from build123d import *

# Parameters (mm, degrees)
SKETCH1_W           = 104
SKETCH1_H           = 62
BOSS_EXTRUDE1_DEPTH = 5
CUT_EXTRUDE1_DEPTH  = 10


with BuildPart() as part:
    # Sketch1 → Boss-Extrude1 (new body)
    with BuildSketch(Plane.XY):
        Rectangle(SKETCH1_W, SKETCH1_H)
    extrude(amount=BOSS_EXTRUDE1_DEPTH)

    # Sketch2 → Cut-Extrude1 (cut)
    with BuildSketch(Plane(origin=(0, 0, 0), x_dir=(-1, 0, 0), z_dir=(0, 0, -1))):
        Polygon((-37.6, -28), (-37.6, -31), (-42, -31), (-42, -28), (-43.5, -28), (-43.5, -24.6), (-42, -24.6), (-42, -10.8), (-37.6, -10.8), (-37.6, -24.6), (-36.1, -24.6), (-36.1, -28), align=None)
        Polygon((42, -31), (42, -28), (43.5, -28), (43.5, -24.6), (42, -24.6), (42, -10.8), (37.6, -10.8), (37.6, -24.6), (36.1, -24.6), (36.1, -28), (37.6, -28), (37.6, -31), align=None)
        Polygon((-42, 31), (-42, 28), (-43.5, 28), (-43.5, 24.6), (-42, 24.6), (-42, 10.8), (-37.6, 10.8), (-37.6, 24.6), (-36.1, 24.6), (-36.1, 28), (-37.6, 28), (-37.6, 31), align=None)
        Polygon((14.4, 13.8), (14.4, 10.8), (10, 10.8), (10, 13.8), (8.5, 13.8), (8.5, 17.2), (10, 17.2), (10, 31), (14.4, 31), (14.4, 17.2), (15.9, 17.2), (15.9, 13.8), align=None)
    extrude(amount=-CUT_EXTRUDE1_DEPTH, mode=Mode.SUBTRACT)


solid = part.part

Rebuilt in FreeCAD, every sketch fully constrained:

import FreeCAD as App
import Part
import Sketcher
from FreeCAD import Vector

doc = App.newDocument("Part")
body = doc.addObject("PartDesign::Body", "Body")

# Sketch on XY plane
sketch1 = body.newObject("Sketcher::SketchObject", "Sketch")
sketch1.AttachmentSupport = (doc.getObject("XY_Plane"), [""])
sketch1.MapMode = "FlatFace"
sketch1.addGeometry(Part.LineSegment(Vector(-52, 31, 0), Vector(-52, -31, 0)), False)
sketch1.addGeometry(Part.LineSegment(Vector(-52, -31, 0), Vector(52, -31, 0)), False)
sketch1.addGeometry(Part.LineSegment(Vector(52, -31, 0), Vector(52, 31, 0)), False)
sketch1.addGeometry(Part.LineSegment(Vector(52, 31, 0), Vector(-52, 31, 0)), False)
sketch1.addConstraint(Sketcher.Constraint("Coincident", 0, 2, 1, 1))
sketch1.addConstraint(Sketcher.Constraint("Coincident", 1, 2, 2, 1))
sketch1.addConstraint(Sketcher.Constraint("Coincident", 2, 2, 3, 1))
sketch1.addConstraint(Sketcher.Constraint("Coincident", 3, 2, 0, 1))
sketch1.addConstraint(Sketcher.Constraint("Vertical", 0))
sketch1.addConstraint(Sketcher.Constraint("Horizontal", 1))
sketch1.addConstraint(Sketcher.Constraint("Vertical", 2))
sketch1.addConstraint(Sketcher.Constraint("Horizontal", 3))
sketch1.addConstraint(Sketcher.Constraint("Symmetric", 0, 2, 2, 2, -1, 1))
sketch1.addConstraint(Sketcher.Constraint("DistanceX", 1, 1, 1, 2, 104.0))
sketch1.addConstraint(Sketcher.Constraint("DistanceY", 0, 2, 0, 1, 62.0))
pad1 = body.newObject("PartDesign::Pad", "Pad")
pad1.Profile = sketch1
pad1.Length = 5

# Sketch on XY plane
sketch2 = body.newObject("Sketcher::SketchObject", "Sketch001")
sketch2.AttachmentSupport = (doc.getObject("XY_Plane"), [""])
sketch2.MapMode = "FlatFace"
sketch2.addGeometry(Part.LineSegment(Vector(37.6, -31, 0), Vector(37.6, -28, 0)), False)
sketch2.addGeometry(Part.LineSegment(Vector(37.6, -28, 0), Vector(36.1, -28, 0)), False)
sketch2.addGeometry(Part.LineSegment(Vector(36.1, -28, 0), Vector(36.1, -24.6, 0)), False)
sketch2.addGeometry(Part.LineSegment(Vector(36.1, -24.6, 0), Vector(37.6, -24.6, 0)), False)
sketch2.addGeometry(Part.LineSegment(Vector(37.6, -24.6, 0), Vector(37.6, -10.8, 0)), False)
sketch2.addGeometry(Part.LineSegment(Vector(37.6, -10.8, 0), Vector(42, -10.8, 0)), False)
sketch2.addGeometry(Part.LineSegment(Vector(42, -10.8, 0), Vector(42, -24.6, 0)), False)
sketch2.addGeometry(Part.LineSegment(Vector(42, -24.6, 0), Vector(43.5, -24.6, 0)), False)
sketch2.addGeometry(Part.LineSegment(Vector(43.5, -24.6, 0), Vector(43.5, -28, 0)), False)
sketch2.addGeometry(Part.LineSegment(Vector(43.5, -28, 0), Vector(42, -28, 0)), False)
sketch2.addGeometry(Part.LineSegment(Vector(42, -28, 0), Vector(42, -31, 0)), False)
sketch2.addGeometry(Part.LineSegment(Vector(42, -31, 0), Vector(37.6, -31, 0)), False)
sketch2.addGeometry(Part.LineSegment(Vector(-42, -31, 0), Vector(-42, -28, 0)), False)
sketch2.addGeometry(Part.LineSegment(Vector(-42, -28, 0), Vector(-43.5, -28, 0)), False)
sketch2.addGeometry(Part.LineSegment(Vector(-43.5, -28, 0), Vector(-43.5, -24.6, 0)), False)
sketch2.addGeometry(Part.LineSegment(Vector(-43.5, -24.6, 0), Vector(-42, -24.6, 0)), False)
sketch2.addGeometry(Part.LineSegment(Vector(-42, -24.6, 0), Vector(-42, -10.8, 0)), False)
sketch2.addGeometry(Part.LineSegment(Vector(-42, -10.8, 0), Vector(-37.6, -10.8, 0)), False)
sketch2.addGeometry(Part.LineSegment(Vector(-37.6, -10.8, 0), Vector(-37.6, -24.6, 0)), False)
sketch2.addGeometry(Part.LineSegment(Vector(-37.6, -24.6, 0), Vector(-36.1, -24.6, 0)), False)
sketch2.addGeometry(Part.LineSegment(Vector(-36.1, -24.6, 0), Vector(-36.1, -28, 0)), False)
sketch2.addGeometry(Part.LineSegment(Vector(-36.1, -28, 0), Vector(-37.6, -28, 0)), False)
sketch2.addGeometry(Part.LineSegment(Vector(-37.6, -28, 0), Vector(-37.6, -31, 0)), False)
sketch2.addGeometry(Part.LineSegment(Vector(-37.6, -31, 0), Vector(-42, -31, 0)), False)
sketch2.addGeometry(Part.LineSegment(Vector(42, 31, 0), Vector(42, 28, 0)), False)
sketch2.addGeometry(Part.LineSegment(Vector(42, 28, 0), Vector(43.5, 28, 0)), False)
sketch2.addGeometry(Part.LineSegment(Vector(43.5, 28, 0), Vector(43.5, 24.6, 0)), False)
sketch2.addGeometry(Part.LineSegment(Vector(43.5, 24.6, 0), Vector(42, 24.6, 0)), False)
sketch2.addGeometry(Part.LineSegment(Vector(42, 24.6, 0), Vector(42, 10.8, 0)), False)
sketch2.addGeometry(Part.LineSegment(Vector(42, 10.8, 0), Vector(37.6, 10.8, 0)), False)
sketch2.addGeometry(Part.LineSegment(Vector(37.6, 10.8, 0), Vector(37.6, 24.6, 0)), False)
sketch2.addGeometry(Part.LineSegment(Vector(37.6, 24.6, 0), Vector(36.1, 24.6, 0)), False)
sketch2.addGeometry(Part.LineSegment(Vector(36.1, 24.6, 0), Vector(36.1, 28, 0)), False)
sketch2.addGeometry(Part.LineSegment(Vector(36.1, 28, 0), Vector(37.6, 28, 0)), False)
sketch2.addGeometry(Part.LineSegment(Vector(37.6, 28, 0), Vector(37.6, 31, 0)), False)
sketch2.addGeometry(Part.LineSegment(Vector(37.6, 31, 0), Vector(42, 31, 0)), False)
sketch2.addGeometry(Part.LineSegment(Vector(-14.4, 10.8, 0), Vector(-14.4, 13.8, 0)), False)
sketch2.addGeometry(Part.LineSegment(Vector(-14.4, 13.8, 0), Vector(-15.9, 13.8, 0)), False)
sketch2.addGeometry(Part.LineSegment(Vector(-15.9, 13.8, 0), Vector(-15.9, 17.2, 0)), False)
sketch2.addGeometry(Part.LineSegment(Vector(-15.9, 17.2, 0), Vector(-14.4, 17.2, 0)), False)
sketch2.addGeometry(Part.LineSegment(Vector(-14.4, 17.2, 0), Vector(-14.4, 31, 0)), False)
sketch2.addGeometry(Part.LineSegment(Vector(-14.4, 31, 0), Vector(-10, 31, 0)), False)
sketch2.addGeometry(Part.LineSegment(Vector(-10, 31, 0), Vector(-10, 17.2, 0)), False)
sketch2.addGeometry(Part.LineSegment(Vector(-10, 17.2, 0), Vector(-8.5, 17.2, 0)), False)
sketch2.addGeometry(Part.LineSegment(Vector(-8.5, 17.2, 0), Vector(-8.5, 13.8, 0)), False)
sketch2.addGeometry(Part.LineSegment(Vector(-8.5, 13.8, 0), Vector(-10, 13.8, 0)), False)
sketch2.addGeometry(Part.LineSegment(Vector(-10, 13.8, 0), Vector(-10, 10.8, 0)), False)
sketch2.addGeometry(Part.LineSegment(Vector(-10, 10.8, 0), Vector(-14.4, 10.8, 0)), False)
sketch2.addConstraint(Sketcher.Constraint("Coincident", 0, 2, 1, 1))
sketch2.addConstraint(Sketcher.Constraint("Coincident", 1, 2, 2, 1))
sketch2.addConstraint(Sketcher.Constraint("Coincident", 2, 2, 3, 1))
sketch2.addConstraint(Sketcher.Constraint("Coincident", 3, 2, 4, 1))
sketch2.addConstraint(Sketcher.Constraint("Coincident", 4, 2, 5, 1))
sketch2.addConstraint(Sketcher.Constraint("Coincident", 5, 2, 6, 1))
sketch2.addConstraint(Sketcher.Constraint("Coincident", 6, 2, 7, 1))
sketch2.addConstraint(Sketcher.Constraint("Coincident", 7, 2, 8, 1))
sketch2.addConstraint(Sketcher.Constraint("Coincident", 8, 2, 9, 1))
sketch2.addConstraint(Sketcher.Constraint("Coincident", 9, 2, 10, 1))
sketch2.addConstraint(Sketcher.Constraint("Coincident", 10, 2, 11, 1))
sketch2.addConstraint(Sketcher.Constraint("Coincident", 11, 2, 0, 1))
sketch2.addConstraint(Sketcher.Constraint("Coincident", 12, 2, 13, 1))
sketch2.addConstraint(Sketcher.Constraint("Coincident", 13, 2, 14, 1))
sketch2.addConstraint(Sketcher.Constraint("Coincident", 14, 2, 15, 1))
sketch2.addConstraint(Sketcher.Constraint("Coincident", 15, 2, 16, 1))
sketch2.addConstraint(Sketcher.Constraint("Coincident", 16, 2, 17, 1))
sketch2.addConstraint(Sketcher.Constraint("Coincident", 17, 2, 18, 1))
sketch2.addConstraint(Sketcher.Constraint("Coincident", 18, 2, 19, 1))
sketch2.addConstraint(Sketcher.Constraint("Coincident", 19, 2, 20, 1))
sketch2.addConstraint(Sketcher.Constraint("Coincident", 20, 2, 21, 1))
sketch2.addConstraint(Sketcher.Constraint("Coincident", 21, 2, 22, 1))
sketch2.addConstraint(Sketcher.Constraint("Coincident", 22, 2, 23, 1))
sketch2.addConstraint(Sketcher.Constraint("Coincident", 23, 2, 12, 1))
sketch2.addConstraint(Sketcher.Constraint("Coincident", 24, 2, 25, 1))
sketch2.addConstraint(Sketcher.Constraint("Coincident", 25, 2, 26, 1))
sketch2.addConstraint(Sketcher.Constraint("Coincident", 26, 2, 27, 1))
sketch2.addConstraint(Sketcher.Constraint("Coincident", 27, 2, 28, 1))
sketch2.addConstraint(Sketcher.Constraint("Coincident", 28, 2, 29, 1))
sketch2.addConstraint(Sketcher.Constraint("Coincident", 29, 2, 30, 1))
sketch2.addConstraint(Sketcher.Constraint("Coincident", 30, 2, 31, 1))
sketch2.addConstraint(Sketcher.Constraint("Coincident", 31, 2, 32, 1))
sketch2.addConstraint(Sketcher.Constraint("Coincident", 32, 2, 33, 1))
sketch2.addConstraint(Sketcher.Constraint("Coincident", 33, 2, 34, 1))
sketch2.addConstraint(Sketcher.Constraint("Coincident", 34, 2, 35, 1))
sketch2.addConstraint(Sketcher.Constraint("Coincident", 35, 2, 24, 1))
sketch2.addConstraint(Sketcher.Constraint("Coincident", 36, 2, 37, 1))
sketch2.addConstraint(Sketcher.Constraint("Coincident", 37, 2, 38, 1))
sketch2.addConstraint(Sketcher.Constraint("Coincident", 38, 2, 39, 1))
sketch2.addConstraint(Sketcher.Constraint("Coincident", 39, 2, 40, 1))
sketch2.addConstraint(Sketcher.Constraint("Coincident", 40, 2, 41, 1))
sketch2.addConstraint(Sketcher.Constraint("Coincident", 41, 2, 42, 1))
sketch2.addConstraint(Sketcher.Constraint("Coincident", 42, 2, 43, 1))
sketch2.addConstraint(Sketcher.Constraint("Coincident", 43, 2, 44, 1))
sketch2.addConstraint(Sketcher.Constraint("Coincident", 44, 2, 45, 1))
sketch2.addConstraint(Sketcher.Constraint("Coincident", 45, 2, 46, 1))
sketch2.addConstraint(Sketcher.Constraint("Coincident", 46, 2, 47, 1))
sketch2.addConstraint(Sketcher.Constraint("Coincident", 47, 2, 36, 1))
sketch2.addConstraint(Sketcher.Constraint("Vertical", 0))
sketch2.addConstraint(Sketcher.Constraint("Horizontal", 1))
sketch2.addConstraint(Sketcher.Constraint("Vertical", 2))
sketch2.addConstraint(Sketcher.Constraint("Horizontal", 3))
sketch2.addConstraint(Sketcher.Constraint("Vertical", 4))
sketch2.addConstraint(Sketcher.Constraint("Horizontal", 5))
sketch2.addConstraint(Sketcher.Constraint("Vertical", 6))
sketch2.addConstraint(Sketcher.Constraint("Horizontal", 7))
sketch2.addConstraint(Sketcher.Constraint("Vertical", 8))
sketch2.addConstraint(Sketcher.Constraint("Horizontal", 9))
sketch2.addConstraint(Sketcher.Constraint("Vertical", 10))
sketch2.addConstraint(Sketcher.Constraint("Horizontal", 11))
sketch2.addConstraint(Sketcher.Constraint("Vertical", 12))
sketch2.addConstraint(Sketcher.Constraint("Horizontal", 13))
sketch2.addConstraint(Sketcher.Constraint("Vertical", 14))
sketch2.addConstraint(Sketcher.Constraint("Horizontal", 15))
sketch2.addConstraint(Sketcher.Constraint("Vertical", 16))
sketch2.addConstraint(Sketcher.Constraint("Horizontal", 17))
sketch2.addConstraint(Sketcher.Constraint("Vertical", 18))
sketch2.addConstraint(Sketcher.Constraint("Horizontal", 19))
sketch2.addConstraint(Sketcher.Constraint("Vertical", 20))
sketch2.addConstraint(Sketcher.Constraint("Horizontal", 21))
sketch2.addConstraint(Sketcher.Constraint("Vertical", 22))
sketch2.addConstraint(Sketcher.Constraint("Horizontal", 23))
sketch2.addConstraint(Sketcher.Constraint("Vertical", 24))
sketch2.addConstraint(Sketcher.Constraint("Horizontal", 25))
sketch2.addConstraint(Sketcher.Constraint("Vertical", 26))
sketch2.addConstraint(Sketcher.Constraint("Horizontal", 27))
sketch2.addConstraint(Sketcher.Constraint("Vertical", 28))
sketch2.addConstraint(Sketcher.Constraint("Horizontal", 29))
sketch2.addConstraint(Sketcher.Constraint("Vertical", 30))
sketch2.addConstraint(Sketcher.Constraint("Horizontal", 31))
sketch2.addConstraint(Sketcher.Constraint("Vertical", 32))
sketch2.addConstraint(Sketcher.Constraint("Horizontal", 33))
sketch2.addConstraint(Sketcher.Constraint("Vertical", 34))
sketch2.addConstraint(Sketcher.Constraint("Horizontal", 35))
sketch2.addConstraint(Sketcher.Constraint("Vertical", 36))
sketch2.addConstraint(Sketcher.Constraint("Horizontal", 37))
sketch2.addConstraint(Sketcher.Constraint("Vertical", 38))
sketch2.addConstraint(Sketcher.Constraint("Horizontal", 39))
sketch2.addConstraint(Sketcher.Constraint("Vertical", 40))
sketch2.addConstraint(Sketcher.Constraint("Horizontal", 41))
sketch2.addConstraint(Sketcher.Constraint("Vertical", 42))
sketch2.addConstraint(Sketcher.Constraint("Horizontal", 43))
sketch2.addConstraint(Sketcher.Constraint("Vertical", 44))
sketch2.addConstraint(Sketcher.Constraint("Horizontal", 45))
sketch2.addConstraint(Sketcher.Constraint("Vertical", 46))
sketch2.addConstraint(Sketcher.Constraint("Horizontal", 47))
sketch2.addConstraint(Sketcher.Constraint("Symmetric", 12, 2, 24, 2, -1, 1))
sketch2.addConstraint(Sketcher.Constraint("Symmetric", 14, 2, 26, 2, -1, 1))
sketch2.addConstraint(Sketcher.Constraint("Symmetric", 16, 2, 28, 2, -1, 1))
sketch2.addConstraint(Sketcher.Constraint("Symmetric", 18, 2, 30, 2, -1, 1))
sketch2.addConstraint(Sketcher.Constraint("Symmetric", 20, 2, 32, 2, -1, 1))
sketch2.addConstraint(Sketcher.Constraint("Symmetric", 22, 2, 34, 2, -1, 1))
sketch2.addConstraint(Sketcher.Constraint("Symmetric", 9, 2, 12, 2, -2))
sketch2.addConstraint(Sketcher.Constraint("Symmetric", 7, 2, 14, 2, -2))
sketch2.addConstraint(Sketcher.Constraint("Symmetric", 5, 2, 16, 2, -2))
sketch2.addConstraint(Sketcher.Constraint("Symmetric", 3, 2, 18, 2, -2))
sketch2.addConstraint(Sketcher.Constraint("Symmetric", 1, 2, 20, 2, -2))
sketch2.addConstraint(Sketcher.Constraint("Symmetric", 11, 2, 22, 2, -2))
sketch2.addConstraint(Sketcher.Constraint("Horizontal", 3, 2, 6, 2))
sketch2.addConstraint(Sketcher.Constraint("Horizontal", 1, 2, 8, 2))
sketch2.addConstraint(Sketcher.Constraint("Horizontal", 35, 2, 40, 2))
sketch2.addConstraint(Sketcher.Constraint("Horizontal", 39, 2, 42, 2))
sketch2.addConstraint(Sketcher.Constraint("Horizontal", 37, 2, 44, 2))
sketch2.addConstraint(Sketcher.Constraint("Horizontal", 29, 2, 46, 2))
sketch2.addConstraint(Sketcher.Constraint("Vertical", 0, 2, 3, 2))
sketch2.addConstraint(Sketcher.Constraint("Vertical", 6, 2, 9, 2))
sketch2.addConstraint(Sketcher.Constraint("Vertical", 36, 2, 39, 2))
sketch2.addConstraint(Sketcher.Constraint("Vertical", 42, 2, 45, 2))
sketch2.addConstraint(Sketcher.Constraint("Equal", 3, 7))
sketch2.addConstraint(Sketcher.Constraint("Equal", 33, 37))
sketch2.addConstraint(Sketcher.Constraint("Equal", 35, 41))
sketch2.addConstraint(Sketcher.Constraint("Equal", 39, 43))
sketch2.addConstraint(Sketcher.Constraint("Equal", 34, 36))
sketch2.addConstraint(Sketcher.Constraint("Equal", 32, 38))
sketch2.addConstraint(Sketcher.Constraint("DistanceY", 0, 1, 0, 2, 3.0))
sketch2.addConstraint(Sketcher.Constraint("DistanceX", 1, 2, 1, 1, 1.5))
sketch2.addConstraint(Sketcher.Constraint("DistanceX", 5, 1, 5, 2, 4.4))
sketch2.addConstraint(Sketcher.Constraint("DistanceY", 2, 1, 2, 2, 3.4))
sketch2.addConstraint(Sketcher.Constraint("DistanceY", 4, 1, 4, 2, 13.8))
sketch2.addConstraint(Sketcher.Constraint("DistanceY", 0, 2, -1, 1, 28.0))
sketch2.addConstraint(Sketcher.Constraint("DistanceX", -1, 1, 5, 2, 42.0))
sketch2.addConstraint(Sketcher.Constraint("DistanceX", 41, 2, -1, 1, 10.0))
pocket1 = body.newObject("PartDesign::Pocket", "Pocket")
pocket1.Profile = sketch2
pocket1.Length = 10
pocket1.Reversed = True

doc.recompute()
